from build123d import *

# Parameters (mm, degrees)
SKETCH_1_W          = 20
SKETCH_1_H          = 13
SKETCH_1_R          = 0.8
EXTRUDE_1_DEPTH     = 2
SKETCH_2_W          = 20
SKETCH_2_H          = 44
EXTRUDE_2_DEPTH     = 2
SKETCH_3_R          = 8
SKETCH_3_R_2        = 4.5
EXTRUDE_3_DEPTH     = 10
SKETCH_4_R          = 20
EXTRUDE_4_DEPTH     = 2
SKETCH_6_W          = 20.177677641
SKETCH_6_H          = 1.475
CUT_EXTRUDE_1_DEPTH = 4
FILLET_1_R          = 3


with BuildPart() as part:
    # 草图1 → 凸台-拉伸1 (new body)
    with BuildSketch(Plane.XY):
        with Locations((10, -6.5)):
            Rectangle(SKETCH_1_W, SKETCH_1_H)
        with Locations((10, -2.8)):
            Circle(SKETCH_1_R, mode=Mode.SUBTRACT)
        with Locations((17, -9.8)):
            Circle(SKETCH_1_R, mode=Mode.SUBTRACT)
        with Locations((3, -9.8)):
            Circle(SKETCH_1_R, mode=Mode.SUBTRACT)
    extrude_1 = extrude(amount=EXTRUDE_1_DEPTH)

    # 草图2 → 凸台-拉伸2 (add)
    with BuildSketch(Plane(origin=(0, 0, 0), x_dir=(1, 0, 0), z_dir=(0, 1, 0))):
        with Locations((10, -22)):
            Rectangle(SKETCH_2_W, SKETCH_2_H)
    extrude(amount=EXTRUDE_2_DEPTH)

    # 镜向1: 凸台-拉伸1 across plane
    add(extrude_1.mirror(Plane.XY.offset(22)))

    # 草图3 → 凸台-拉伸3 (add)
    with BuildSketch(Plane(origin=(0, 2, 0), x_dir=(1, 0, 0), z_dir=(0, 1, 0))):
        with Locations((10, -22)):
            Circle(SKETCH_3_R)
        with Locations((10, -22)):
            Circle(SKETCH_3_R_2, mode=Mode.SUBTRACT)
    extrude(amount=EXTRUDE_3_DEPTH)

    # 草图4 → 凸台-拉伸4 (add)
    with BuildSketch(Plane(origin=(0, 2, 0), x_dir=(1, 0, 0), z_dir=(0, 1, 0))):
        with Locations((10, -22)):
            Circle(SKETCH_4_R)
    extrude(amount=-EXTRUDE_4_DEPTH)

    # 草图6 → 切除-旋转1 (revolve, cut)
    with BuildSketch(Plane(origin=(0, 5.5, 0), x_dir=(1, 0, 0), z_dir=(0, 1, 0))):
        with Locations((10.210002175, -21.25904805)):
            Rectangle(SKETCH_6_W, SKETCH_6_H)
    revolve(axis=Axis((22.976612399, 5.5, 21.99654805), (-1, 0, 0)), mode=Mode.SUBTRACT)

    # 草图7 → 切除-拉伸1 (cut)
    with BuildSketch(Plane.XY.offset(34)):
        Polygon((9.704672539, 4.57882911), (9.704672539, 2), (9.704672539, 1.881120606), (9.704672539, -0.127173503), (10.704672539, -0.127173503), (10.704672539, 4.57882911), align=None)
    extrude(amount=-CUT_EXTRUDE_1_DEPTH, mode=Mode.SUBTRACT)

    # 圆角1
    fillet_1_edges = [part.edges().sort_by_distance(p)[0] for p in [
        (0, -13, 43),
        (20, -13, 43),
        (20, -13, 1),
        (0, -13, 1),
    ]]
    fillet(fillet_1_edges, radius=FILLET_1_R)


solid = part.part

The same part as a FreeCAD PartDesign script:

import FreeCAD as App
import Part
import Sketcher


def edges_at(feature, points):
    """Names of the edges that pass closest to the given points."""
    edges = feature.Shape.Edges
    near = lambda p: min(range(len(edges)), key=lambda i: edges[i].distToShape(Part.Vertex(*p))[0])
    return sorted({f"Edge{near(p) + 1}" for p in points})

doc = App.newDocument("Part")
params = doc.addObject("Spreadsheet::Sheet", "Params")
for row, (alias, value) in enumerate([
    ("sketch1_diameter", "1.6 mm"),
    ("sketch1_width", "20 mm"),
    ("sketch1_height", "13 mm"),
    ("pad1_length", "2 mm"),
    ("sketch2_width", "20 mm"),
    ("sketch2_height", "44 mm"),
    ("pad2_length", "2 mm"),
    ("sketch3_diameter", "16 mm"),
    ("sketch3_diameter2", "9 mm"),
    ("pad3_length", "10 mm"),
    ("sketch4_diameter", "40 mm"),
    ("pad4_length", "2 mm"),
    ("groove_angle", "360 deg"),
    ("sketch6_width", "1 mm"),
    ("pocket1_length", "4 mm"),
    ("fillet_radius", "3 mm"),
], start=1):
    params.set(f"A{row}", alias)
    params.set(f"B{row}", "=" + value)
    params.setAlias(f"B{row}", alias)

body = doc.addObject("PartDesign::Body", "Body")

sketch1 = doc.addObject("Sketcher::SketchObject", "Sketch")
body.addObject(sketch1)
sketch1.AttachmentSupport = (doc.XY_Plane, [""])
sketch1.MapMode = "FlatFace"
sketch1.addGeometry([
    Part.LineSegment(App.Vector(0, 0, 0), App.Vector(0, -13, 0)),
    Part.LineSegment(App.Vector(0, -13, 0), App.Vector(20, -13, 0)),
    Part.LineSegment(App.Vector(20, -13, 0), App.Vector(20, 0, 0)),
    Part.LineSegment(App.Vector(20, 0, 0), App.Vector(0, 0, 0)),
    Part.Circle(App.Vector(3, -9.8, 0), App.Vector(0, 0, 1), 0.8),
    Part.Circle(App.Vector(17, -9.8, 0), App.Vector(0, 0, 1), 0.8),
    Part.Circle(App.Vector(10, -2.8, 0), App.Vector(0, 0, 1), 0.8),
], False)
sketch1.addConstraint([
    Sketcher.Constraint("Coincident", 0, 2, 1, 1),
    Sketcher.Constraint("Coincident", 1, 2, 2, 1),
    Sketcher.Constraint("Coincident", 2, 2, 3, 1),
    Sketcher.Constraint("Coincident", 3, 2, 0, 1),
    Sketcher.Constraint("Vertical", 0),
    Sketcher.Constraint("Horizontal", 1),
    Sketcher.Constraint("Vertical", 2),
    Sketcher.Constraint("Horizontal", 3),
    Sketcher.Constraint("Coincident", 3, 2, -1, 1),
    Sketcher.Constraint("Equal", 4, 5),
    Sketcher.Constraint("Equal", 5, 6),
    Sketcher.Constraint("Horizontal", 4, 3, 5, 3),
    Sketcher.Constraint("Diameter", 4, 1.6),
    Sketcher.Constraint("DistanceX", 1, 1, 1, 2, 20.0),
    Sketcher.Constraint("DistanceY", 0, 2, 0, 1, 13.0),
    Sketcher.Constraint("DistanceX", -1, 1, 4, 3, 3.0),
    Sketcher.Constraint("DistanceX", -1, 1, 5, 3, 17.0),
    Sketcher.Constraint("DistanceX", -1, 1, 6, 3, 10.0),
    Sketcher.Constraint("DistanceY", 4, 3, 6, 3, 7.0),
    Sketcher.Constraint("DistanceY", 4, 3, -1, 1, 9.8),
])
sketch1.setExpression("Constraints[12]", "Params.sketch1_diameter")
sketch1.setExpression("Constraints[13]", "Params.sketch1_width")
sketch1.setExpression("Constraints[14]", "Params.sketch1_height")
pad1 = doc.addObject("PartDesign::Pad", "Pad")
body.addObject(pad1)
pad1.Profile = sketch1
pad1.setExpression("Length", "Params.pad1_length")

sketch2 = doc.addObject("Sketcher::SketchObject", "Sketch001")
body.addObject(sketch2)
sketch2.AttachmentSupport = (doc.XZ_Plane, [""])
sketch2.MapMode = "FlatFace"
sketch2.addGeometry([
    Part.LineSegment(App.Vector(0, 0, 0), App.Vector(0, 44, 0)),
    Part.LineSegment(App.Vector(0, 44, 0), App.Vector(20, 44, 0)),
    Part.LineSegment(App.Vector(20, 44, 0), App.Vector(20, 0, 0)),
    Part.LineSegment(App.Vector(20, 0, 0), App.Vector(0, 0, 0)),
], False)
sketch2.addConstraint([
    Sketcher.Constraint("Coincident", 0, 2, 1, 1),
    Sketcher.Constraint("Coincident", 1, 2, 2, 1),
    Sketcher.Constraint("Coincident", 2, 2, 3, 1),
    Sketcher.Constraint("Coincident", 3, 2, 0, 1),
    Sketcher.Constraint("Vertical", 0),
    Sketcher.Constraint("Horizontal", 1),
    Sketcher.Constraint("Vertical", 2),
    Sketcher.Constraint("Horizontal", 3),
    Sketcher.Constraint("Coincident", 3, 2, -1, 1),
    Sketcher.Constraint("DistanceX", 1, 1, 1, 2, 20.0),
    Sketcher.Constraint("DistanceY", 0, 1, 0, 2, 44.0),
])
sketch2.setExpression("Constraints[9]", "Params.sketch2_width")
sketch2.setExpression("Constraints[10]", "Params.sketch2_height")
pad2 = doc.addObject("PartDesign::Pad", "Pad001")
body.addObject(pad2)
pad2.Profile = sketch2
pad2.setExpression("Length", "Params.pad2_length")
pad2.Reversed = True
doc.recompute()

datumplane = doc.addObject("PartDesign::Plane", "DatumPlane")
body.addObject(datumplane)
datumplane.AttachmentSupport = (doc.XY_Plane, [""])
datumplane.MapMode = "FlatFace"
datumplane.AttachmentOffset = App.Placement(App.Vector(0, 0, 22), App.Rotation())
mirrored = doc.addObject("PartDesign::Mirrored", "Mirrored")
body.addObject(mirrored)
mirrored.Originals = [pad1]
mirrored.MirrorPlane = (datumplane, [""])
body.Tip = mirrored

sketch3 = doc.addObject("Sketcher::SketchObject", "Sketch002")
body.addObject(sketch3)
sketch3.AttachmentSupport = (doc.XZ_Plane, [""])
sketch3.MapMode = "FlatFace"
sketch3.AttachmentOffset = App.Placement(App.Vector(0, 0, -2), App.Rotation())
sketch3.addGeometry([
    Part.Circle(App.Vector(10, 22, 0), App.Vector(0, 0, 1), 8),
    Part.Circle(App.Vector(10, 22, 0), App.Vector(0, 0, 1), 4.5),
], False)
sketch3.addConstraint([
    Sketcher.Constraint("Coincident", 1, 3, 0, 3),
    Sketcher.Constraint("Diameter", 0, 16.0),
    Sketcher.Constraint("Diameter", 1, 9.0),
    Sketcher.Constraint("DistanceX", -1, 1, 0, 3, 10.0),
    Sketcher.Constraint("DistanceY", -1, 1, 0, 3, 22.0),
])
sketch3.setExpression("Constraints[1]", "Params.sketch3_diameter")
sketch3.setExpression("Constraints[2]", "Params.sketch3_diameter2")
pad3 = doc.addObject("PartDesign::Pad", "Pad002")
body.addObject(pad3)
pad3.Profile = sketch3
pad3.setExpression("Length", "Params.pad3_length")
pad3.Reversed = True

sketch4 = doc.addObject("Sketcher::SketchObject", "Sketch003")
body.addObject(sketch4)
sketch4.AttachmentSupport = (doc.XZ_Plane, [""])
sketch4.MapMode = "FlatFace"
sketch4.AttachmentOffset = App.Placement(App.Vector(0, 0, -2), App.Rotation())
sketch4.addGeometry(Part.Circle(App.Vector(10, 22, 0), App.Vector(0, 0, 1), 20), False)
sketch4.addConstraint([
    Sketcher.Constraint("Diameter", 0, 40.0),
    Sketcher.Constraint("DistanceX", -1, 1, 0, 3, 10.0),
    Sketcher.Constraint("DistanceY", -1, 1, 0, 3, 22.0),
])
sketch4.setExpression("Constraints[0]", "Params.sketch4_diameter")
pad4 = doc.addObject("PartDesign::Pad", "Pad003")
body.addObject(pad4)
pad4.Profile = sketch4
pad4.setExpression("Length", "Params.pad4_length")

sketch5 = doc.addObject("Sketcher::SketchObject", "Sketch004")
body.addObject(sketch5)
sketch5.AttachmentSupport = (doc.XZ_Plane, [""])
sketch5.MapMode = "FlatFace"
sketch5.AttachmentOffset = App.Placement(App.Vector(0, 0, -5.5), App.Rotation())
sketch5.addGeometry([
    Part.LineSegment(App.Vector(0.1, 20.5, 0), App.Vector(0.1, 22, 0)),
    Part.LineSegment(App.Vector(0.1, 22, 0), App.Vector(20.3, 22, 0)),
    Part.LineSegment(App.Vector(20.3, 22, 0), App.Vector(20.3, 20.5, 0)),
    Part.LineSegment(App.Vector(20.3, 20.5, 0), App.Vector(0.1, 20.5, 0)),
], False)
sketch5.addGeometry(Part.LineSegment(App.Vector(20.3, 22, 0), App.Vector(0.1, 22, 0)), True)
sketch5.addConstraint([
    Sketcher.Constraint("Coincident", 0, 2, 1, 1),
    Sketcher.Constraint("Coincident", 1, 2, 2, 1),
    Sketcher.Constraint("Coincident", 2, 2, 3, 1),
    Sketcher.Constraint("Coincident", 3, 2, 0, 1),
    Sketcher.Constraint("Vertical", 0),
    Sketcher.Constraint("Horizontal", 1),
    Sketcher.Constraint("Vertical", 2),
    Sketcher.Constraint("Horizontal", 3),
    Sketcher.Constraint("Horizontal", 4),
    Sketcher.Constraint("Coincident", 4, 1, 1, 2),
    Sketcher.Constraint("Vertical", 3, 2, 4, 2),
    Sketcher.Constraint("DistanceY", 0, 1, 0, 2, 1.475),
    Sketcher.Constraint("DistanceX", 1, 1, 1, 2, 20.177678),
    Sketcher.Constraint("DistanceY", -1, 1, 0, 2, 21.996548),
    Sketcher.Constraint("DistanceX", -1, 1, 1, 2, 20.298841),
])
groove = doc.addObject("PartDesign::Groove", "Groove")
body.addObject(groove)
groove.Profile = sketch5
groove.ReferenceAxis = (sketch5, ["Axis0"])
groove.setExpression("Angle", "Params.groove_angle")

sketch6 = doc.addObject("Sketcher::SketchObject", "Sketch005")
body.addObject(sketch6)
sketch6.AttachmentSupport = (doc.XY_Plane, [""])
sketch6.MapMode = "FlatFace"
sketch6.AttachmentOffset = App.Placement(App.Vector(0, 0, 34), App.Rotation())
sketch6.addGeometry([
    Part.LineSegment(App.Vector(9.7, 4.6, 0), App.Vector(9.7, -0.1, 0)),
    Part.LineSegment(App.Vector(9.7, -0.1, 0), App.Vector(10.7, -0.1, 0)),
    Part.LineSegment(App.Vector(10.7, -0.1, 0), App.Vector(10.7, 4.6, 0)),
    Part.LineSegment(App.Vector(10.7, 4.6, 0), App.Vector(9.7, 4.6, 0)),
], False)
sketch6.addConstraint([
    Sketcher.Constraint("Coincident", 0, 2, 1, 1),
    Sketcher.Constraint("Coincident", 1, 2, 2, 1),
    Sketcher.Constraint("Coincident", 2, 2, 3, 1),
    Sketcher.Constraint("Coincident", 3, 2, 0, 1),
    Sketcher.Constraint("Vertical", 0),
    Sketcher.Constraint("Horizontal", 1),
    Sketcher.Constraint("Vertical", 2),
    Sketcher.Constraint("Horizontal", 3),
    Sketcher.Constraint("DistanceX", 1, 1, 1, 2, 1.0),
    Sketcher.Constraint("DistanceY", 0, 2, 0, 1, 4.706003),
    Sketcher.Constraint("DistanceY", -1, 1, 2, 2, 4.578829),
    Sketcher.Constraint("DistanceX", -1, 1, 0, 2, 9.704673),
])
sketch6.setExpression("Constraints[8]", "Params.sketch6_width")
pocket1 = doc.addObject("PartDesign::Pocket", "Pocket")
body.addObject(pocket1)
pocket1.Profile = sketch6
pocket1.setExpression("Length", "Params.pocket1_length")
doc.recompute()

fillet = doc.addObject("PartDesign::Fillet", "Fillet")
body.addObject(fillet)
fillet.Base = (pocket1, edges_at(pocket1, [
    (0, -13, 43),
    (20, -13, 43),
    (20, -13, 1),
    (0, -13, 1),
]))
fillet.setExpression("Radius", "Params.fillet_radius")

doc.recompute()
